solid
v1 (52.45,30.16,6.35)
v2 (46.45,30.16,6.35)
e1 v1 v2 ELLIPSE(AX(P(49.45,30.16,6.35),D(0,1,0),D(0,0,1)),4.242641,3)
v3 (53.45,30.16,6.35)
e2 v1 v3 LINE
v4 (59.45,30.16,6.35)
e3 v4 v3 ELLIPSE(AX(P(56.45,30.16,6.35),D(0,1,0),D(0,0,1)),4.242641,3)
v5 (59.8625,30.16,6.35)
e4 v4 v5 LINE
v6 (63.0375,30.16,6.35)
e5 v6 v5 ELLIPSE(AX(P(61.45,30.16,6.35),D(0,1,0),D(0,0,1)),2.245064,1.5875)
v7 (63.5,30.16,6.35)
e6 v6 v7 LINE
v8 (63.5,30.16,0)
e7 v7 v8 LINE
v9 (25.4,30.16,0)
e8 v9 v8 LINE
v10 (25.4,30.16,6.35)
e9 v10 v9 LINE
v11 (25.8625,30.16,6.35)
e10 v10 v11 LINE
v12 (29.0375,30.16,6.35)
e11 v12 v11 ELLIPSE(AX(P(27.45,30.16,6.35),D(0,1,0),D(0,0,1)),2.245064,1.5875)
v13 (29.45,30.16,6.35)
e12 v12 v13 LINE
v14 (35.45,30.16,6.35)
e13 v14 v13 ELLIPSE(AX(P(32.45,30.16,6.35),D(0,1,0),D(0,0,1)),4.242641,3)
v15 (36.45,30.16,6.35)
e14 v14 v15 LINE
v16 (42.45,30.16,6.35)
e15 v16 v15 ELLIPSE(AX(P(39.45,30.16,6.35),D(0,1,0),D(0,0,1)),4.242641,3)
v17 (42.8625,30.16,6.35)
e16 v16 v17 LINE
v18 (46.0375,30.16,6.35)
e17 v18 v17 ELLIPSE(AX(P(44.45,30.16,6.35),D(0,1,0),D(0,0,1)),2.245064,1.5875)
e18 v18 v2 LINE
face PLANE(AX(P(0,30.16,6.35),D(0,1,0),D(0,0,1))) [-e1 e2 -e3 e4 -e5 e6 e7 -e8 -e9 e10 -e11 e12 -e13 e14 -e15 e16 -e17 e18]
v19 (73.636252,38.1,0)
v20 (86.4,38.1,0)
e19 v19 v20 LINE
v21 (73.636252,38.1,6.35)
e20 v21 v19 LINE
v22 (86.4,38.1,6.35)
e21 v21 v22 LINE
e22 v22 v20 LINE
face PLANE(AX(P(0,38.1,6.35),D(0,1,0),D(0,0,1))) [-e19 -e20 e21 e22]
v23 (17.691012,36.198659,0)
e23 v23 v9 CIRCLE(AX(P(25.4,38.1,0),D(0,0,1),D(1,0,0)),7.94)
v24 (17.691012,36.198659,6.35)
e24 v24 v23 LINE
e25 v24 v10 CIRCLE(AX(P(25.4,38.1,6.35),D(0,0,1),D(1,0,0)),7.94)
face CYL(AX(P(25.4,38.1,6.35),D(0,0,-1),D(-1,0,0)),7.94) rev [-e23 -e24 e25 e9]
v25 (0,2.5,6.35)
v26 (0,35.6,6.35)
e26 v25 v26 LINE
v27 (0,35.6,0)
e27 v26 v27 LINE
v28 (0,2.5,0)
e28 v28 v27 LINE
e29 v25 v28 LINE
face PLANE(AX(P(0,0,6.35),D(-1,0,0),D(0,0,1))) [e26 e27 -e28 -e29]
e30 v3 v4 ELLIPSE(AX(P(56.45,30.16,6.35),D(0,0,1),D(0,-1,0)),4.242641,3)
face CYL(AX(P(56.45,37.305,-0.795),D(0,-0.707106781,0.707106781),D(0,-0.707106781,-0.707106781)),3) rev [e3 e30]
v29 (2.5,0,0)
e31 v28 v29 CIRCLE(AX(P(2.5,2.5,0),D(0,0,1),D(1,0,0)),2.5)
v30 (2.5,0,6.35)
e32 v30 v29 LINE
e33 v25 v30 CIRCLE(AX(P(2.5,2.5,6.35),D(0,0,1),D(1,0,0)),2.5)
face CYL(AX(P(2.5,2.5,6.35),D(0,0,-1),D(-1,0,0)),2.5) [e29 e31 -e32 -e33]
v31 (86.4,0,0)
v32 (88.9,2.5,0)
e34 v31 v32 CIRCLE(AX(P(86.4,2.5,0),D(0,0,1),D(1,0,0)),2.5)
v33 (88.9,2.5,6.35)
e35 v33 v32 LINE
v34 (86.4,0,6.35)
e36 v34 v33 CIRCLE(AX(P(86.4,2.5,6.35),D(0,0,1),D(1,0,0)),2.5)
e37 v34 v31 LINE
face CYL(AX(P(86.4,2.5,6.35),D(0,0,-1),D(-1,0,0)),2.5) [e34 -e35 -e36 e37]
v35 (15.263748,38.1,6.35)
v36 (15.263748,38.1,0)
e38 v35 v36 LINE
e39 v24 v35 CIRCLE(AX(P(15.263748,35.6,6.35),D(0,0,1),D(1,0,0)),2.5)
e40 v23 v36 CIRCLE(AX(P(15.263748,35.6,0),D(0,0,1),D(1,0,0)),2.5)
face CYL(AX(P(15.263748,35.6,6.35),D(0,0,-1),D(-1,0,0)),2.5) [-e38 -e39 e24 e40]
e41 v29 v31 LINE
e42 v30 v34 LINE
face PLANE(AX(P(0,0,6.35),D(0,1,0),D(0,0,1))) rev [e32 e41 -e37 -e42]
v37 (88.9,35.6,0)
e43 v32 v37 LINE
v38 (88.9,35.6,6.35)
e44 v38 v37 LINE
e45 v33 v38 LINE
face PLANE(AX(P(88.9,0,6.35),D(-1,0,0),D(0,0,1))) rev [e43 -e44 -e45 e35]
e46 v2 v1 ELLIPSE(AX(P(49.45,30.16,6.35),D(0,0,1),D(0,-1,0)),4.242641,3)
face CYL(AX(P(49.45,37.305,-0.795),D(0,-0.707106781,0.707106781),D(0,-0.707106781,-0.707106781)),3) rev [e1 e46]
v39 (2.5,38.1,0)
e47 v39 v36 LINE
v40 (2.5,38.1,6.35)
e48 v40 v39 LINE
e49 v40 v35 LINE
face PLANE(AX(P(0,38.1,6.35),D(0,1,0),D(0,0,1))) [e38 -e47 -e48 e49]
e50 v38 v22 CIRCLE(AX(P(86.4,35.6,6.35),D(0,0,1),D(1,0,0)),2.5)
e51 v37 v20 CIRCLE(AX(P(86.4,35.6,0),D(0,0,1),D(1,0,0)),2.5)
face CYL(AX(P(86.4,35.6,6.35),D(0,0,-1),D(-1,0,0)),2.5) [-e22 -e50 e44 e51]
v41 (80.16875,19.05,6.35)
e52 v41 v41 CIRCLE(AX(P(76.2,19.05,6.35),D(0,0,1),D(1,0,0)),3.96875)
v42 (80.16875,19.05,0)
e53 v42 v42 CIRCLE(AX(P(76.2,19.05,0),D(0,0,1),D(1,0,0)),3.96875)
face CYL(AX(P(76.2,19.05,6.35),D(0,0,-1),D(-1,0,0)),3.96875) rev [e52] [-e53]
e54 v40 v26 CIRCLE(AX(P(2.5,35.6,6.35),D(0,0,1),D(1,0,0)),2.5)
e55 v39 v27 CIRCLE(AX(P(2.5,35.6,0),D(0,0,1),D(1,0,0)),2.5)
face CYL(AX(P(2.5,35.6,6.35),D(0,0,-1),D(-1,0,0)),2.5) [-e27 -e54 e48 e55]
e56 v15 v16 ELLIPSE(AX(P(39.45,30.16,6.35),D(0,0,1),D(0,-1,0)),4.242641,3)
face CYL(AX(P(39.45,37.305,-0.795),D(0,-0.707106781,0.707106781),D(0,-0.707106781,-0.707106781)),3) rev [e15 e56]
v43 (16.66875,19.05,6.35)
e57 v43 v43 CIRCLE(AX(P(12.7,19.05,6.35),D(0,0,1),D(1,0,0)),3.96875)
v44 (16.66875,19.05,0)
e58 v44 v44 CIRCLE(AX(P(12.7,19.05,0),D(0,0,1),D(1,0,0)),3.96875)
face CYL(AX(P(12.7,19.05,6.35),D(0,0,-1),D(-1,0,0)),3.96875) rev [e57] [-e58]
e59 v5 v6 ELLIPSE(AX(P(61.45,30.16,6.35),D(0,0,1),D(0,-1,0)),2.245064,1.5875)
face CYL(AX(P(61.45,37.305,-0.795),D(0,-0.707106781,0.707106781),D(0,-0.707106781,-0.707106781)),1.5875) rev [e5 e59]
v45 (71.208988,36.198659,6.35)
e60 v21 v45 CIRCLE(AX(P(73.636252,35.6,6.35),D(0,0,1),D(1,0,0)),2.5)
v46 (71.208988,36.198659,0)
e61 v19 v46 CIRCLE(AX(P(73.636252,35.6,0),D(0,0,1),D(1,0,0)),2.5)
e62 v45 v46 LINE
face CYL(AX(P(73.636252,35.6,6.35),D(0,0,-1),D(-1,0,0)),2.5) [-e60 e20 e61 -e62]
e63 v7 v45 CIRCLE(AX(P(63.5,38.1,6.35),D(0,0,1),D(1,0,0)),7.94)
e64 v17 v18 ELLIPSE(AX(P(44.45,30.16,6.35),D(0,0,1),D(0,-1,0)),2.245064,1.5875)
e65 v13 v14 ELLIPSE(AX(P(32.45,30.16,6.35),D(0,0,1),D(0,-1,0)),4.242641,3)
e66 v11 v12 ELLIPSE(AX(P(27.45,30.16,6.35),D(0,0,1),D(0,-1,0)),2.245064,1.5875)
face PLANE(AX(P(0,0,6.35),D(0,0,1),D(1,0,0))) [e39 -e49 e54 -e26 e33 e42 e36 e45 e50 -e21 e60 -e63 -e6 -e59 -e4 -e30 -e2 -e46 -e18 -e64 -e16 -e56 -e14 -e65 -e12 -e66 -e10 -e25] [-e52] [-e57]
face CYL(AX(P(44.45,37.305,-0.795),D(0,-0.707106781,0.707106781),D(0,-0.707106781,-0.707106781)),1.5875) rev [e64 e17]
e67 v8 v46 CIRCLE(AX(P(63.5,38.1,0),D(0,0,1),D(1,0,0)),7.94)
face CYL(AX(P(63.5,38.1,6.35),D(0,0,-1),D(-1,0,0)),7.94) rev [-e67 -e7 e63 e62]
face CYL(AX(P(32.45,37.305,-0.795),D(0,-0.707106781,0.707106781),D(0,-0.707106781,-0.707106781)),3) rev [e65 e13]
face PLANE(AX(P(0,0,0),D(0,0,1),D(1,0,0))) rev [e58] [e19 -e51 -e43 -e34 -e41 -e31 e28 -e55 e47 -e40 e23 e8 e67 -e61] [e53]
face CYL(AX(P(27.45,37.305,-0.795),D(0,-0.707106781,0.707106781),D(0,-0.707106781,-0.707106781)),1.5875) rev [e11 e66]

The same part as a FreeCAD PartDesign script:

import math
import FreeCAD as App
import Part
import Sketcher
from FreeCAD import Vector
Q = App.Units.Quantity

doc = App.newDocument("Part")
body = doc.addObject("PartDesign::Body", "Body")

sketch1 = body.newObject("Sketcher::SketchObject", "Sketch")
sketch1.AttachmentSupport = (doc.getObject("XY_Plane"), [""])
sketch1.MapMode = "FlatFace"
sketch1.addGeometry([
    Part.ArcOfCircle(Part.Circle(Vector(25.4, 38.1, 0), Vector(0, 0, 1), 7.94), math.radians(-166.145116), math.radians(-90)),
    Part.ArcOfCircle(Part.Circle(Vector(15.263748, 35.6, 0), Vector(0, 0, 1), 2.5), math.radians(13.854884), math.radians(90)),
    Part.LineSegment(Vector(15.263748, 38.1, 0), Vector(2.5, 38.1, 0)),
    Part.ArcOfCircle(Part.Circle(Vector(2.5, 35.6, 0), Vector(0, 0, 1), 2.5), math.radians(90), math.radians(180)),
    Part.LineSegment(Vector(0, 35.6, 0), Vector(0, 2.5, 0)),
    Part.ArcOfCircle(Part.Circle(Vector(2.5, 2.5, 0), Vector(0, 0, 1), 2.5), math.radians(180), math.radians(270)),
    Part.LineSegment(Vector(2.5, 0, 0), Vector(86.4, 0, 0)),
    Part.ArcOfCircle(Part.Circle(Vector(86.4, 2.5, 0), Vector(0, 0, 1), 2.5), math.radians(-90), math.radians(0)),
    Part.LineSegment(Vector(88.9, 2.5, 0), Vector(88.9, 35.6, 0)),
    Part.ArcOfCircle(Part.Circle(Vector(86.4, 35.6, 0), Vector(0, 0, 1), 2.5), math.radians(0), math.radians(90)),
    Part.LineSegment(Vector(86.4, 38.1, 0), Vector(73.636252, 38.1, 0)),
    Part.ArcOfCircle(Part.Circle(Vector(73.636252, 35.6, 0), Vector(0, 0, 1), 2.5), math.radians(90), math.radians(166.145116)),
    Part.ArcOfCircle(Part.Circle(Vector(63.5, 38.1, 0), Vector(0, 0, 1), 7.94), math.radians(-90), math.radians(-13.854884)),
    Part.LineSegment(Vector(63.5, 30.16, 0), Vector(25.4, 30.16, 0)),
    Part.Circle(Vector(76.2, 19.05, 0), Vector(0, 0, 1), 3.96875),
    Part.Circle(Vector(12.7, 19.05, 0), Vector(0, 0, 1), 3.96875),
], False)
sketch1.addConstraint([
    Sketcher.Constraint("Tangent", 0, 1, 1, 1),
    Sketcher.Constraint("Tangent", 1, 2, 2, 1),
    Sketcher.Constraint("Tangent", 2, 2, 3, 1),
    Sketcher.Constraint("Tangent", 3, 2, 4, 1),
    Sketcher.Constraint("Tangent", 4, 2, 5, 1),
    Sketcher.Constraint("Tangent", 5, 2, 6, 1),
    Sketcher.Constraint("Tangent", 6, 2, 7, 1),
    Sketcher.Constraint("Tangent", 7, 2, 8, 1),
    Sketcher.Constraint("Tangent", 8, 2, 9, 1),
    Sketcher.Constraint("Tangent", 9, 2, 10, 1),
    Sketcher.Constraint("Tangent", 10, 2, 11, 1),
    Sketcher.Constraint("Tangent", 11, 2, 12, 2),
    Sketcher.Constraint("Tangent", 12, 1, 13, 1),
    Sketcher.Constraint("Tangent", 13, 2, 0, 2),
    Sketcher.Constraint("Horizontal", 2),
    Sketcher.Constraint("Vertical", 4),
    Sketcher.Constraint("Horizontal", 6),
    Sketcher.Constraint("Vertical", 8),
    Sketcher.Constraint("Horizontal", 10),
    Sketcher.Constraint("Horizontal", 13),
    Sketcher.Constraint("Equal", 1, 3),
    Sketcher.Constraint("Equal", 3, 5),
    Sketcher.Constraint("Equal", 5, 7),
    Sketcher.Constraint("Equal", 7, 9),
    Sketcher.Constraint("Equal", 9, 11),
    Sketcher.Constraint("Equal", 0, 12),
    Sketcher.Constraint("Equal", 14, 15),
    Sketcher.Constraint("PointOnObject", 3, 2, -2),
    Sketcher.Constraint("PointOnObject", 5, 2, -1),
    Sketcher.Constraint("Horizontal", 3, 3, 9, 3),
    Sketcher.Constraint("Horizontal", 14, 3, 15, 3),
    Sketcher.Constraint("Horizontal", 12, 3, 1, 2),
    Sketcher.Constraint("Equal", 2, 10),
    Sketcher.Constraint("Radius", 1, Q("2.5 mm")),
    Sketcher.Constraint("Radius", 0, Q("7.94 mm")),
    Sketcher.Constraint("DistanceX", 6, 1, 6, 2, Q("83.9 mm")),
    Sketcher.Constraint("DistanceX", 13, 2, 13, 1, Q("38.1 mm")),
    Sketcher.Constraint("DistanceY", 4, 2, 4, 1, Q("33.1 mm")),
    Sketcher.Constraint("Diameter", 14, Q("7.9375 mm")),
    Sketcher.Constraint("DistanceX", -1, 1, 14, 3, Q("76.2 mm")),
    Sketcher.Constraint("DistanceX", -1, 1, 15, 3, Q("12.7 mm")),
    Sketcher.Constraint("DistanceY", -1, 1, 14, 3, Q("19.05 mm")),
])
pad1 = body.newObject("PartDesign::Pad", "Pad")
pad1.Profile = sketch1
pad1.Length = 6.35

sketch2 = body.newObject("Sketcher::SketchObject", "Sketch001")
sketch2.Placement = App.Placement(Vector(0, 11.905, -11.905), App.Rotation(Vector(1, 0, 0), Vector(0, 0.707106781, 0.707106781), Vector(0, -0.707106781, 0.707106781), "ZXY"))
sketch2.addGeometry([
    Part.Circle(Vector(49.45, 25.816469, 0), Vector(0, 0, 1), 3),
    Part.Circle(Vector(39.45, 25.816469, 0), Vector(0, 0, 1), 3),
    Part.Circle(Vector(32.45, 25.816469, 0), Vector(0, 0, 1), 3),
    Part.Circle(Vector(56.45, 25.816469, 0), Vector(0, 0, 1), 3),
    Part.Circle(Vector(61.45, 25.816469, 0), Vector(0, 0, 1), 1.5875),
    Part.Circle(Vector(27.45, 25.816469, 0), Vector(0, 0, 1), 1.5875),
    Part.Circle(Vector(44.45, 25.816469, 0), Vector(0, 0, 1), 1.5875),
], False)
sketch2.addConstraint([
    Sketcher.Constraint("Equal", 0, 1),
    Sketcher.Constraint("Equal", 1, 2),
    Sketcher.Constraint("Equal", 2, 3),
    Sketcher.Constraint("Equal", 4, 5),
    Sketcher.Constraint("Equal", 5, 6),
    Sketcher.Constraint("Horizontal", 0, 3, 1, 3),
    Sketcher.Constraint("Horizontal", 1, 3, 2, 3),
    Sketcher.Constraint("Horizontal", 2, 3, 3, 3),
    Sketcher.Constraint("Horizontal", 3, 3, 4, 3),
    Sketcher.Constraint("Horizontal", 4, 3, 5, 3),
    Sketcher.Constraint("Horizontal", 5, 3, 6, 3),
    Sketcher.Constraint("Diameter", 0, Q("6 mm")),
    Sketcher.Constraint("Diameter", 4, Q("3.175 mm")),
    Sketcher.Constraint("DistanceX", 1, 3, 0, 3, Q("10 mm")),
    Sketcher.Constraint("DistanceX", 2, 3, 1, 3, Q("7 mm")),
    Sketcher.Constraint("DistanceX", 0, 3, 3, 3, Q("7 mm")),
    Sketcher.Constraint("DistanceX", 3, 3, 4, 3, Q("5 mm")),
    Sketcher.Constraint("DistanceX", 5, 3, 2, 3, Q("5 mm")),
    Sketcher.Constraint("DistanceX", 6, 3, 0, 3, Q("5 mm")),
    Sketcher.Constraint("DistanceX", -1, 1, 0, 3, Q("49.45 mm")),
    Sketcher.Constraint("DistanceY", -1, 1, 0, 3, Q("25.816469 mm")),
])
pocket1 = body.newObject("PartDesign::Pocket", "Pocket")
pocket1.Profile = sketch2
pocket1.Type = "ThroughAll"
pocket1.Midplane = True

doc.recompute()
